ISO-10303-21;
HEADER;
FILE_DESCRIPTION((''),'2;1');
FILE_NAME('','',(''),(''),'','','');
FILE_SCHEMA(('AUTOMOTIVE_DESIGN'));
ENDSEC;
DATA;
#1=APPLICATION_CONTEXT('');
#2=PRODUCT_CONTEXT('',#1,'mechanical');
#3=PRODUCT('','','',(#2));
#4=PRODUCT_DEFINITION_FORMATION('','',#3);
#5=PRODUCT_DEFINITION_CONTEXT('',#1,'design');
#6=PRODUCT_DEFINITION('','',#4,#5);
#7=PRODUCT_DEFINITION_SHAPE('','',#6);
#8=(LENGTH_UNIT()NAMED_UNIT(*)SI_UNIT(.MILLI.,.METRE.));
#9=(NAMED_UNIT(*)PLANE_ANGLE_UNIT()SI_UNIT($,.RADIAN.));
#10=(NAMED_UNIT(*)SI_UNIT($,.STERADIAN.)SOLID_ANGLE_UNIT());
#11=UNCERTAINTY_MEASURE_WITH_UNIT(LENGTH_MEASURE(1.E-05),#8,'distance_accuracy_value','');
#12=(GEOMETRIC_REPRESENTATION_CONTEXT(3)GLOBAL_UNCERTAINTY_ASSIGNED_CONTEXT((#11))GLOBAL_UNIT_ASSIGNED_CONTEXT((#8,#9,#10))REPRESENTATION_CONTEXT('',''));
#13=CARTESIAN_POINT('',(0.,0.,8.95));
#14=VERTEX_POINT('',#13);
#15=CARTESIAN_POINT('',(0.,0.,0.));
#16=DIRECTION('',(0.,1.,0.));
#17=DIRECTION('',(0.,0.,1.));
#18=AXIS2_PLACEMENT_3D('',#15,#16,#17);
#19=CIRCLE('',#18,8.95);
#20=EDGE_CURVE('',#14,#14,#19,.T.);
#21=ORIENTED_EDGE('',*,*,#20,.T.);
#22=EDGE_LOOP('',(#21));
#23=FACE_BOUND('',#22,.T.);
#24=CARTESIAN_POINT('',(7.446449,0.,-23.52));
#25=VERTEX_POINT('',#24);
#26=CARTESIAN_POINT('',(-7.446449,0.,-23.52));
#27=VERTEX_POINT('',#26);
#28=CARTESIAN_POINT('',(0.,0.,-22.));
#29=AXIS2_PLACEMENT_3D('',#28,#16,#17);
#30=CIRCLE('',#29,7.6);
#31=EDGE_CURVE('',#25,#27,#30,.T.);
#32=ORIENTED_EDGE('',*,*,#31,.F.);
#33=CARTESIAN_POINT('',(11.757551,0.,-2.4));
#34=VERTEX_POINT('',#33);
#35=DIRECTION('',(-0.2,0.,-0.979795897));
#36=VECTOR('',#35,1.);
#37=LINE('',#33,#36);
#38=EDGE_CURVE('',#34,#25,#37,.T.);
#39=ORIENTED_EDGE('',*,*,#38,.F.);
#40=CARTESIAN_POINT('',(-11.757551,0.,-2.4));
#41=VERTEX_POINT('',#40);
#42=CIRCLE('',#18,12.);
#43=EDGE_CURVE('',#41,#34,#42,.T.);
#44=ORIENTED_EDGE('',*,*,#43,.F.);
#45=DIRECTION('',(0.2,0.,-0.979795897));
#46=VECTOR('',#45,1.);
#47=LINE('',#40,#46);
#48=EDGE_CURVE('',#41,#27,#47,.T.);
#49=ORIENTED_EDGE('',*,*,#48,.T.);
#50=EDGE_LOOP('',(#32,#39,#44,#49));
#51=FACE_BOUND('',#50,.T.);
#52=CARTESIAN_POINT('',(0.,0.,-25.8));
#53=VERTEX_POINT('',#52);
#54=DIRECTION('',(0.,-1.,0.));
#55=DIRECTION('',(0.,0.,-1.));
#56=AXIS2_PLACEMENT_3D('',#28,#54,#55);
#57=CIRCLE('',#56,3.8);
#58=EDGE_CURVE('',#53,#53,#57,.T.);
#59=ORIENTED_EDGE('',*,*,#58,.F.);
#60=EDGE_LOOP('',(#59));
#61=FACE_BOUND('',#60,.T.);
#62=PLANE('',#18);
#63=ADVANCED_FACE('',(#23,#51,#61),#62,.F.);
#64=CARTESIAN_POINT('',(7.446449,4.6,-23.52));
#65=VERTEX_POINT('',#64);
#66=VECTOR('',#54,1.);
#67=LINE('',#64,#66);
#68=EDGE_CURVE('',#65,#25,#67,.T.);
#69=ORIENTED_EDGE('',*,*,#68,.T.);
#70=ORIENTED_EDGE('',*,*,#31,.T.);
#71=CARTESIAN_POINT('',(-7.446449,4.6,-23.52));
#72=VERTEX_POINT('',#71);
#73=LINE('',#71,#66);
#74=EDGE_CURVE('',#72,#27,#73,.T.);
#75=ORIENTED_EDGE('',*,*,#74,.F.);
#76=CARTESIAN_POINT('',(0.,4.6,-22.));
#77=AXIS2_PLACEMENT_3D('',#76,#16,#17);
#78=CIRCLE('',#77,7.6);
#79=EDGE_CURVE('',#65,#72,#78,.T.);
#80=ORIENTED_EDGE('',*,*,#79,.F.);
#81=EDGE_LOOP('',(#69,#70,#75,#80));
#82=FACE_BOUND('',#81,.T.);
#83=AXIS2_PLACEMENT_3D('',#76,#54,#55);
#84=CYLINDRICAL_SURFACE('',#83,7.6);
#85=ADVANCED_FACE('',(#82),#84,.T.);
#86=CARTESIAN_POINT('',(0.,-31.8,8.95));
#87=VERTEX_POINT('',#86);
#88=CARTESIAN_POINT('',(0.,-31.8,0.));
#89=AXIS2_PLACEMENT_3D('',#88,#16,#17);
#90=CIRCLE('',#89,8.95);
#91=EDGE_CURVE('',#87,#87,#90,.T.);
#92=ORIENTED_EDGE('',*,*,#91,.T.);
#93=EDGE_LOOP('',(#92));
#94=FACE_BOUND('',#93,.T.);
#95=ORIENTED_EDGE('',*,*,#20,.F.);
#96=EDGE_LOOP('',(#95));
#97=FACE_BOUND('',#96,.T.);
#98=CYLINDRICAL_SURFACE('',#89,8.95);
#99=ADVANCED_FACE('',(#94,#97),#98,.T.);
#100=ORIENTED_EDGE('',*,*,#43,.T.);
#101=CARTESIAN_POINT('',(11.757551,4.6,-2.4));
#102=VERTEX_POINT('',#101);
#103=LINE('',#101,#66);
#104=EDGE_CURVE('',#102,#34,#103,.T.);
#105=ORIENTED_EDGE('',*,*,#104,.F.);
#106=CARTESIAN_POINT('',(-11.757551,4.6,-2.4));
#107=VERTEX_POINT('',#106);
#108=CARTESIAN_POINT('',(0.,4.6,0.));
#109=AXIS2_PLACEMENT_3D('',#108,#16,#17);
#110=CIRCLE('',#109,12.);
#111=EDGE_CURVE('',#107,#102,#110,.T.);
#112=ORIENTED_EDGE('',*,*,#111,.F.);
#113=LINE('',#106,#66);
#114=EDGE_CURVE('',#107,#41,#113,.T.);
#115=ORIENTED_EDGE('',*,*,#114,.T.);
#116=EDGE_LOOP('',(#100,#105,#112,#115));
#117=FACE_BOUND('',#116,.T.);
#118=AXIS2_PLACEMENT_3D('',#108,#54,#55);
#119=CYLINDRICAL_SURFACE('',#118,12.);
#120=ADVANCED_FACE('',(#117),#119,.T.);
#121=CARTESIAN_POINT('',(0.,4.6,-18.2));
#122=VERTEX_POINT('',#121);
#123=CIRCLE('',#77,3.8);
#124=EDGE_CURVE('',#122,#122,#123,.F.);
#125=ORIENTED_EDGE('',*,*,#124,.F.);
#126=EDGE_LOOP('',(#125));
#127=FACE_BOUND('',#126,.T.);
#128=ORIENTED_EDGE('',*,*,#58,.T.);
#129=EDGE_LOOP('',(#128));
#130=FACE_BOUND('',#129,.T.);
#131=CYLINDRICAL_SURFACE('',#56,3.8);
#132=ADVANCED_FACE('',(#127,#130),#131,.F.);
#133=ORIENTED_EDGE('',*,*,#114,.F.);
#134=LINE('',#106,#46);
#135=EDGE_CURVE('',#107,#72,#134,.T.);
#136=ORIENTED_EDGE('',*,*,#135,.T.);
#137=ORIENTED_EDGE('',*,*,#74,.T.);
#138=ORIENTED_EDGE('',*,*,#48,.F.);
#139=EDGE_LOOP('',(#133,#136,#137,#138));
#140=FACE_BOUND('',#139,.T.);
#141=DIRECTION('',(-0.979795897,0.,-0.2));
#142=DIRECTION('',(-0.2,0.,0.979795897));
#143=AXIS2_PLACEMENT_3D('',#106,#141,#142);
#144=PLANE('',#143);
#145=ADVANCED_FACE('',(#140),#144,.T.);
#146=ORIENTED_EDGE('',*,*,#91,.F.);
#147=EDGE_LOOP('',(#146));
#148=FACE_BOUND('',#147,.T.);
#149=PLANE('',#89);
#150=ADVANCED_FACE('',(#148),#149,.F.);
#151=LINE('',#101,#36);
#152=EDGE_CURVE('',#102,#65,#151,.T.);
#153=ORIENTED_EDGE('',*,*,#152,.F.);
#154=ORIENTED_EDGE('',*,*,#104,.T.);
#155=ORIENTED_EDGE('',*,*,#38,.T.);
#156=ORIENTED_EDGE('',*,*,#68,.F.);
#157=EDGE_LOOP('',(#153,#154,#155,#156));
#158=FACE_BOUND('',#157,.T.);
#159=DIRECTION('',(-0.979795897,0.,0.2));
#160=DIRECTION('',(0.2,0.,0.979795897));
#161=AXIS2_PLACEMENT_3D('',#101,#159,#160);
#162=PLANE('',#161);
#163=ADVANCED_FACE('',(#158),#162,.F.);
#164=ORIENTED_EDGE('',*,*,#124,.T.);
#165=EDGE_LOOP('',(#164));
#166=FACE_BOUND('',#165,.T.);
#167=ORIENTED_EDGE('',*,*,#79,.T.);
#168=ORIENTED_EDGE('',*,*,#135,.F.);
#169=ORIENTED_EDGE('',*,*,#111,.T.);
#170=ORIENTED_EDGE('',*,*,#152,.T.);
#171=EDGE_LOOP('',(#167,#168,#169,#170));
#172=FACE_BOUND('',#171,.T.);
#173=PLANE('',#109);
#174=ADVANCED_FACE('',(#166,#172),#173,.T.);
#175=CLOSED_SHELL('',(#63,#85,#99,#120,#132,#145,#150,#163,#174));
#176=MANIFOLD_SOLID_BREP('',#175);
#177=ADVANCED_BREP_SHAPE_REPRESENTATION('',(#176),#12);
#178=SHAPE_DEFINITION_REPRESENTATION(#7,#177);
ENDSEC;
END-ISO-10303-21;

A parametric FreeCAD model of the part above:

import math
import FreeCAD as App
import Part
import Sketcher
Q = App.Units.Quantity

doc = App.newDocument("Part")
body = doc.addObject("PartDesign::Body", "Body")

# Sketch on XZ plane
sketch1 = body.newObject("Sketcher::SketchObject", "Sketch")
sketch1.AttachmentSupport = (doc.getObject("XZ_Plane"), [""])
sketch1.MapMode = "FlatFace"
sketch1.addGeometry([
    Part.LineSegment(App.Vector(-7, -24, 0), App.Vector(-12, -2, 0)),
    Part.ArcOfCircle(Part.Circle(App.Vector(0, 0, 0), App.Vector(0, 0, 1), 12), math.radians(-12), math.radians(192)),
    Part.LineSegment(App.Vector(12, -2, 0), App.Vector(7, -24, 0)),
    Part.ArcOfCircle(Part.Circle(App.Vector(0, -22, 0), App.Vector(0, 0, 1), 8), math.radians(-168), math.radians(-12)),
], False)
sketch1.addConstraint([
    Sketcher.Constraint("Tangent", 0, 2, 1, 2),
    Sketcher.Constraint("Tangent", 1, 1, 2, 1),
    Sketcher.Constraint("Tangent", 2, 2, 3, 2),
    Sketcher.Constraint("Tangent", 3, 1, 0, 1),
    Sketcher.Constraint("Coincident", 1, 3, -1, 1),
    Sketcher.Constraint("PointOnObject", 3, 3, -2),
    Sketcher.Constraint("Radius", 1, Q("12 mm")),
    Sketcher.Constraint("Radius", 3, Q("7.6 mm")),
    Sketcher.Constraint("DistanceY", 3, 3, -1, 1, Q("22 mm")),
])
pad1 = body.newObject("PartDesign::Pad", "Pad")
pad1.Profile = sketch1
pad1.Length = 4.6
pad1.Reversed = True

# Sketch on XZ plane
sketch2 = body.newObject("Sketcher::SketchObject", "Sketch001")
sketch2.AttachmentSupport = (doc.getObject("XZ_Plane"), [""])
sketch2.MapMode = "FlatFace"
sketch2.addGeometry(Part.Circle(App.Vector(0, 0, 0), App.Vector(0, 0, 1), 9), False)
sketch2.addConstraint([
    Sketcher.Constraint("Coincident", 0, 3, -1, 1),
    Sketcher.Constraint("Diameter", 0, Q("17.9 mm")),
])
pad2 = body.newObject("PartDesign::Pad", "Pad001")
pad2.Profile = sketch2
pad2.Length = 31.8

# Sketch on XZ plane
sketch3 = body.newObject("Sketcher::SketchObject", "Sketch002")
sketch3.AttachmentSupport = (doc.getObject("XZ_Plane"), [""])
sketch3.MapMode = "FlatFace"
sketch3.addGeometry(Part.Circle(App.Vector(0, -22, 0), App.Vector(0, 0, 1), 3.8), False)
sketch3.addConstraint([
    Sketcher.Constraint("PointOnObject", 0, 3, -2),
    Sketcher.Constraint("Diameter", 0, Q("7.6 mm")),
    Sketcher.Constraint("DistanceY", 0, 3, -1, 1, Q("22 mm")),
])
doc.recompute()
hole = body.newObject("PartDesign::Hole", "Hole")
hole.Profile = sketch3
hole.ThreadType = "None"
hole.Diameter = 7.6
hole.DepthType = "ThroughAll"

doc.recompute()
